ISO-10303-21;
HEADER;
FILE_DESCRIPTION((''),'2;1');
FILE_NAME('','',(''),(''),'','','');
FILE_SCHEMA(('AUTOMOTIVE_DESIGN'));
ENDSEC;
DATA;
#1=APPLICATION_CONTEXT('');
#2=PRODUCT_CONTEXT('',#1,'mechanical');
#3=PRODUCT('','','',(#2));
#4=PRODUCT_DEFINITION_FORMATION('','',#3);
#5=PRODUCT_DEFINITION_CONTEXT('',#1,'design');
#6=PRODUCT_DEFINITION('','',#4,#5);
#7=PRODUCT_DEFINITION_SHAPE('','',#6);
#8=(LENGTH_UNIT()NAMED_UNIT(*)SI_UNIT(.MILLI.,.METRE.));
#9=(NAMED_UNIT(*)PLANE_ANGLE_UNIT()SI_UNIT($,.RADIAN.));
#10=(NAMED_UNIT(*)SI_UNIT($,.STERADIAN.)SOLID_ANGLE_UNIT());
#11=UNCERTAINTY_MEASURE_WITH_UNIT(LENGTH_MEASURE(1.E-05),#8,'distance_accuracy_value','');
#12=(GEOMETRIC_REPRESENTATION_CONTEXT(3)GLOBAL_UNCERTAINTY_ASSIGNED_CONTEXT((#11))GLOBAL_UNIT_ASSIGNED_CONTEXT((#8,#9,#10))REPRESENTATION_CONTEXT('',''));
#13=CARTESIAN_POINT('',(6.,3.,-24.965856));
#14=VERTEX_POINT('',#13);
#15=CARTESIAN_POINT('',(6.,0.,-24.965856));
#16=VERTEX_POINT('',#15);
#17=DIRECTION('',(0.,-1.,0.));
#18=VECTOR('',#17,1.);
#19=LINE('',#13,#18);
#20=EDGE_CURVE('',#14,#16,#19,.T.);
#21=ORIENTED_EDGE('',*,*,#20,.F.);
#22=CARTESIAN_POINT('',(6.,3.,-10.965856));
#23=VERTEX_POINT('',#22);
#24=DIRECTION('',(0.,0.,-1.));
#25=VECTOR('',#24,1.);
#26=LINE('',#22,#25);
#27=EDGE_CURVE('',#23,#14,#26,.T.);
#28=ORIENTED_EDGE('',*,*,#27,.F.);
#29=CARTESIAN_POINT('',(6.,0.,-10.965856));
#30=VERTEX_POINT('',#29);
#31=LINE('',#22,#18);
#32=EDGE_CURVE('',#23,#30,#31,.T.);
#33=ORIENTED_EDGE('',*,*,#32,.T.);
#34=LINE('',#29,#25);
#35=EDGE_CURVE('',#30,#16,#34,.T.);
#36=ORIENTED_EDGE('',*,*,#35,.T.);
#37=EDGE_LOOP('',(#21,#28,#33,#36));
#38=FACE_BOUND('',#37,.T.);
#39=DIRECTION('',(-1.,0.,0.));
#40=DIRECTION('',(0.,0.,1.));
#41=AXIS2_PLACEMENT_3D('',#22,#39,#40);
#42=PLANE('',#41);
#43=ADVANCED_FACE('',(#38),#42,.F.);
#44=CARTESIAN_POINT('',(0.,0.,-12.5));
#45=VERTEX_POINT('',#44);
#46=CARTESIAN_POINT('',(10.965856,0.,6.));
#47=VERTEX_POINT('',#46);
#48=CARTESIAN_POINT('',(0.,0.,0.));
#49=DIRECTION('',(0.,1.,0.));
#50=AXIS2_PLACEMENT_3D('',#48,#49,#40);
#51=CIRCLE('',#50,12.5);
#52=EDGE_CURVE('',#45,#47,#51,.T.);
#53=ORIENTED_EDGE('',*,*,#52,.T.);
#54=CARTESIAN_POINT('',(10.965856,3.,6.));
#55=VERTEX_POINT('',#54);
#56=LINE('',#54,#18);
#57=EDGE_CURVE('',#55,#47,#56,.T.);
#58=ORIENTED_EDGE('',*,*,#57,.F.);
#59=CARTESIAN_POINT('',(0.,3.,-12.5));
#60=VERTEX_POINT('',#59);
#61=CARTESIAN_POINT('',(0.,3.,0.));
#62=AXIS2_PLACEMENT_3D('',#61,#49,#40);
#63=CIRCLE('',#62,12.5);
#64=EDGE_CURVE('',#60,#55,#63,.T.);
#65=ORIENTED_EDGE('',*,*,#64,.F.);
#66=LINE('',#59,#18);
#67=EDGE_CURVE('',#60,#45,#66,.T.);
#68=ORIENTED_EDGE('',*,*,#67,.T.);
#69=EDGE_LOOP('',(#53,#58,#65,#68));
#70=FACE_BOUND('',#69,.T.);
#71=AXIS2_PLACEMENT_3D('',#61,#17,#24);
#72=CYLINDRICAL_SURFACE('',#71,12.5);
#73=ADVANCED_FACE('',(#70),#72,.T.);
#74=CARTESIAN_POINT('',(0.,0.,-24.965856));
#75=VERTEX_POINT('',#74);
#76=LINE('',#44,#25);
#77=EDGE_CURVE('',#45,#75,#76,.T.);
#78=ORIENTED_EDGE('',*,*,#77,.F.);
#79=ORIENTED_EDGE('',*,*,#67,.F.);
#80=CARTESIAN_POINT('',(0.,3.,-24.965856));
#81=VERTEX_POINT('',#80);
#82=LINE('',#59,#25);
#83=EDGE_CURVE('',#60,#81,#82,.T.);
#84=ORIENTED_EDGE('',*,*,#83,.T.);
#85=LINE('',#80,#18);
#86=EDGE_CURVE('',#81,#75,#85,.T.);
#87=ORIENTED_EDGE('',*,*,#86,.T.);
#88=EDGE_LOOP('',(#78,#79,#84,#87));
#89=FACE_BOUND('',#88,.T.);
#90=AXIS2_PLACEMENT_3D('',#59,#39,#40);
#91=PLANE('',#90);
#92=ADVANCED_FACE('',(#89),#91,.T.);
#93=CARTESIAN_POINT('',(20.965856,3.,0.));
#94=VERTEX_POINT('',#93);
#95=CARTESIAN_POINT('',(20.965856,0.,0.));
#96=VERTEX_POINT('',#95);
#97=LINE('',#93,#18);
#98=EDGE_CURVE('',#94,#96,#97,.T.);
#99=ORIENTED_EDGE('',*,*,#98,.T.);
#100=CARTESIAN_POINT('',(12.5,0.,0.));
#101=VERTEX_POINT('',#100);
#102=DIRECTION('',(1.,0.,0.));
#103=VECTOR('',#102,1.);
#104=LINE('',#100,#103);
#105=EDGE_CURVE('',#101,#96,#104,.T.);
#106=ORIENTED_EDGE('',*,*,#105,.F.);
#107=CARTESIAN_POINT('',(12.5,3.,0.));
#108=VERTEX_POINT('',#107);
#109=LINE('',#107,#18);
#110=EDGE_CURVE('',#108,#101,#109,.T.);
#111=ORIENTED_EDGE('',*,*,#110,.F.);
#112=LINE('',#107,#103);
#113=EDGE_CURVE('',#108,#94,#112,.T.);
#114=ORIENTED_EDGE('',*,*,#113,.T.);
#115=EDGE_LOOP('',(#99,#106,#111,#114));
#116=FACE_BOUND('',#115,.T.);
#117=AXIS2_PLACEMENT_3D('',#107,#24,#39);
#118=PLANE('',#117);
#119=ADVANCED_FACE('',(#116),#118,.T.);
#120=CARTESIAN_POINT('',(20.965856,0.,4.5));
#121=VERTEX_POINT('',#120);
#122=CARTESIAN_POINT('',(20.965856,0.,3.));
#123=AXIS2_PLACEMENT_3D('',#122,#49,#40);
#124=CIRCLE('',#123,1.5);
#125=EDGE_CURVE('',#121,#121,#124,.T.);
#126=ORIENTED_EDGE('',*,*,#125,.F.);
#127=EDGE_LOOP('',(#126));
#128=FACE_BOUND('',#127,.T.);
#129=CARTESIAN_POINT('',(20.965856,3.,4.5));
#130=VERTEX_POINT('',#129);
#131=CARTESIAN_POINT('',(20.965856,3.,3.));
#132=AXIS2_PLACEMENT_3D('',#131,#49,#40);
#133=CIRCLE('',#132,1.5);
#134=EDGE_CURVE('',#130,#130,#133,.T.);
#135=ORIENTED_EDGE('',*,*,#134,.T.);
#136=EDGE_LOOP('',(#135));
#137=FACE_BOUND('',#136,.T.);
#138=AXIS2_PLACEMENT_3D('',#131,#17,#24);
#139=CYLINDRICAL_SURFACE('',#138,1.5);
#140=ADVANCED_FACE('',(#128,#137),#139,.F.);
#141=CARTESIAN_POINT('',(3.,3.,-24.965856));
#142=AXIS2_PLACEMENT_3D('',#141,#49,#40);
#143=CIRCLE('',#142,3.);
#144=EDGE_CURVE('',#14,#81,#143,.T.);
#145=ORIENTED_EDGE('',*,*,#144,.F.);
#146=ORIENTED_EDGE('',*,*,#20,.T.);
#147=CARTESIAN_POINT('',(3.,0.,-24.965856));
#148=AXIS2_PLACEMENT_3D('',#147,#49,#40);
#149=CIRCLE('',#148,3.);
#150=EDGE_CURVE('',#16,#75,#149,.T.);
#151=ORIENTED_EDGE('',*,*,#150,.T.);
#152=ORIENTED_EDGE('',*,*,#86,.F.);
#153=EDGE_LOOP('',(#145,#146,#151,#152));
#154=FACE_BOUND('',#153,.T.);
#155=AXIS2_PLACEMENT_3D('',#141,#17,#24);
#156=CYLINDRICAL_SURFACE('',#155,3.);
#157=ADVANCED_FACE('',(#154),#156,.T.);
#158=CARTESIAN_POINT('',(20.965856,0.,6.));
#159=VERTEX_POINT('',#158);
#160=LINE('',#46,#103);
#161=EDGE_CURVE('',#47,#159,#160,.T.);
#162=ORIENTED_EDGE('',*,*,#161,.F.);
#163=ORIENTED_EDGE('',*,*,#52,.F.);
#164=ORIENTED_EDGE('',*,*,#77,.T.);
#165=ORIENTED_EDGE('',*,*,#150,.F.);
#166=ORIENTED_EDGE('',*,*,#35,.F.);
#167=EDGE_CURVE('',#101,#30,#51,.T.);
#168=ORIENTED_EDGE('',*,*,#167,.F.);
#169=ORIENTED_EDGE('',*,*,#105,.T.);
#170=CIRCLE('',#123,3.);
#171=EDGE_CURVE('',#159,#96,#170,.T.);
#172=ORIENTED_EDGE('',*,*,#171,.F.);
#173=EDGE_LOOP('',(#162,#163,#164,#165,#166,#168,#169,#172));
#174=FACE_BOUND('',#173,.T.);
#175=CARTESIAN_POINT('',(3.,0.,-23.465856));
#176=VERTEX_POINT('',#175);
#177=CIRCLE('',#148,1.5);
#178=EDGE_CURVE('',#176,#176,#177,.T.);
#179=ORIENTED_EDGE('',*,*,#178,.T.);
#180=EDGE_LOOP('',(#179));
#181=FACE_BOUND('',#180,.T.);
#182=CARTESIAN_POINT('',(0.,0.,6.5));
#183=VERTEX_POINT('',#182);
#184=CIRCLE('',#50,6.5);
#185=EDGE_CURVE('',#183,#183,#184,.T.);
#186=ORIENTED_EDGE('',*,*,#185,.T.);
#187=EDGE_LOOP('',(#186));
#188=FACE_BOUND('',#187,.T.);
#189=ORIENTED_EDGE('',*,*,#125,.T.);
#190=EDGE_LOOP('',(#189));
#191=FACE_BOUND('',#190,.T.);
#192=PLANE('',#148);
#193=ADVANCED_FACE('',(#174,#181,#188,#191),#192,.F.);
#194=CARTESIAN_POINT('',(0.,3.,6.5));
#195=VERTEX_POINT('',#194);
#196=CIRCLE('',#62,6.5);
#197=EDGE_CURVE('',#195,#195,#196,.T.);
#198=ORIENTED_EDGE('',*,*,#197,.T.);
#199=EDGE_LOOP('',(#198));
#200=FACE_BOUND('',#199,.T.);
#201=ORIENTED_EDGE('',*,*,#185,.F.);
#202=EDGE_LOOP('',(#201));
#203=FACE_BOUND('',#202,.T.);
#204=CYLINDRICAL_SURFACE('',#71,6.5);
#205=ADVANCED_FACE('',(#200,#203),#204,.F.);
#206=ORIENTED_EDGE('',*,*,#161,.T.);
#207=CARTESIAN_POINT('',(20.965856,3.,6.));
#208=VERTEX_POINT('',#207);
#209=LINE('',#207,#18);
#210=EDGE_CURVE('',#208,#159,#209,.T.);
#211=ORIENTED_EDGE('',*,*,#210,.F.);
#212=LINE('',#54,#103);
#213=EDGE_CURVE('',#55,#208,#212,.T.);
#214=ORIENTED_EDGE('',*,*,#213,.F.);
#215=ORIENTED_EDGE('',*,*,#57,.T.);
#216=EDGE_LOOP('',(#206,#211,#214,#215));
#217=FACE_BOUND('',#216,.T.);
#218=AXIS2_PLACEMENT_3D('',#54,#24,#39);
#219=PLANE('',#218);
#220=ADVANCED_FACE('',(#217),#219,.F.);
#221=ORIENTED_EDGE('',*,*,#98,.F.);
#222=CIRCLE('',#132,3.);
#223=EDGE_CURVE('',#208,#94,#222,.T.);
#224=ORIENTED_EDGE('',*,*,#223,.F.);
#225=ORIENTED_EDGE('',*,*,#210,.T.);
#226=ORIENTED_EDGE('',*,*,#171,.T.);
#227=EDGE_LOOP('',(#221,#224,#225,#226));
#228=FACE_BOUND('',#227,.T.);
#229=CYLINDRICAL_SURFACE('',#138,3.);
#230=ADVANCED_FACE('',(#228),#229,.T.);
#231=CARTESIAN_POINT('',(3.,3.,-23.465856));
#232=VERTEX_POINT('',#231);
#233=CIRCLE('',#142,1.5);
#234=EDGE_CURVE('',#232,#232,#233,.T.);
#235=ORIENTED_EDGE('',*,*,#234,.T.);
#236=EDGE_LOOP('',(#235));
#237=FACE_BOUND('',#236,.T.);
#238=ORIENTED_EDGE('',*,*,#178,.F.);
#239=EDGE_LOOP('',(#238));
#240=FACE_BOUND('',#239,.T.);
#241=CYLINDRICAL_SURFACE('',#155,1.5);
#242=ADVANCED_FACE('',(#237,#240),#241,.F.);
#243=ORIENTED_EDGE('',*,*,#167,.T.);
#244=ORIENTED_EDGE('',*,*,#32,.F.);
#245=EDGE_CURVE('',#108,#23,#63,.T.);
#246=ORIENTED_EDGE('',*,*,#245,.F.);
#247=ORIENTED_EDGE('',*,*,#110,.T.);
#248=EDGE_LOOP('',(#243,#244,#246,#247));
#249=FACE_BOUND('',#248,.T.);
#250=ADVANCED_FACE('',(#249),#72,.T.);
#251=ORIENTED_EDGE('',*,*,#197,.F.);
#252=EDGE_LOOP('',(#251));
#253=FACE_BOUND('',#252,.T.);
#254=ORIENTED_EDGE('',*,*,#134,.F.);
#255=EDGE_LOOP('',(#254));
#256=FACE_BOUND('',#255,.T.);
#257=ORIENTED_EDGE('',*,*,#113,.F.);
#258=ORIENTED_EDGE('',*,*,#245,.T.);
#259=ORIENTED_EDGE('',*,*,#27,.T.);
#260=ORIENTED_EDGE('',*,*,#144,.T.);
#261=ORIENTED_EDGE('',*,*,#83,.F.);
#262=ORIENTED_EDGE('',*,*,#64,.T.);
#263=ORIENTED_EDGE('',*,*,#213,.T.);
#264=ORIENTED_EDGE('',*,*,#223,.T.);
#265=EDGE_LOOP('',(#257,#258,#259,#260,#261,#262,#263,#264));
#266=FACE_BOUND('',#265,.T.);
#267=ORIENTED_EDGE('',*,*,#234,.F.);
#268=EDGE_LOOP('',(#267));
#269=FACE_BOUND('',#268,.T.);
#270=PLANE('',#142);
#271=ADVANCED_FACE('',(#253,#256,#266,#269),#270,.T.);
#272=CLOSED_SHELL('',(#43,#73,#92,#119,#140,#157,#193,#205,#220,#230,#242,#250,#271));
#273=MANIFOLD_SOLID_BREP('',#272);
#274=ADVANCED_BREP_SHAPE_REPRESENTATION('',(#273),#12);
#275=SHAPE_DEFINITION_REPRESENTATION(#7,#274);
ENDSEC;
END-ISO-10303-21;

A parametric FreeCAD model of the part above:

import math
import FreeCAD as App
import Part
import Sketcher
from FreeCAD import Vector

doc = App.newDocument("Part")
body = doc.addObject("PartDesign::Body", "Body")

# Sketch on XZ plane
sketch1 = doc.addObject("Sketcher::SketchObject", "Sketch")
body.addObject(sketch1)
sketch1.AttachmentSupport = (doc.XZ_Plane, [""])
sketch1.MapMode = "FlatFace"
sketch1.addGeometry([
    Part.LineSegment(Vector(0, -24.965856, 0), Vector(0, -12.5, 0)),  # 0
    Part.ArcOfCircle(Part.Circle(Vector(0, 0, 0), Vector(0, 0, 1), 12.5), math.radians(28.685402), math.radians(270)),  # 1
    Part.LineSegment(Vector(10.965856, 6, 0), Vector(20.965856, 6, 0)),  # 2
    Part.ArcOfCircle(Part.Circle(Vector(20.965856, 3, 0), Vector(0, 0, 1), 3), math.radians(-90), math.radians(90)),  # 3
    Part.LineSegment(Vector(20.965856, 0, 0), Vector(12.5, 0, 0)),  # 4
    Part.ArcOfCircle(Part.Circle(Vector(0, 0, 0), Vector(0, 0, 1), 12.5), math.radians(-61.314598), math.radians(0)),  # 5
    Part.LineSegment(Vector(6, -10.965856, 0), Vector(6, -24.965856, 0)),  # 6
    Part.ArcOfCircle(Part.Circle(Vector(3, -24.965856, 0), Vector(0, 0, 1), 3), math.radians(180), math.radians(360)),  # 7
    Part.Circle(Vector(20.965856, 3, 0), Vector(0, 0, 1), 1.5),  # 8
    Part.Circle(Vector(0, 0, 0), Vector(0, 0, 1), 6.5),  # 9
    Part.Circle(Vector(3, -24.965856, 0), Vector(0, 0, 1), 1.5),  # 10
], False)
sketch1.addConstraint([
    Sketcher.Constraint("Coincident", 0, 2, 1, 2),
    Sketcher.Constraint("Coincident", 1, 1, 2, 1),
    Sketcher.Constraint("Tangent", 2, 2, 3, 2),
    Sketcher.Constraint("Tangent", 3, 1, 4, 1),
    Sketcher.Constraint("Coincident", 4, 2, 5, 2),
    Sketcher.Constraint("Coincident", 5, 1, 6, 1),
    Sketcher.Constraint("Tangent", 6, 2, 7, 2),
    Sketcher.Constraint("Tangent", 7, 1, 0, 1),
    Sketcher.Constraint("Vertical", 0),
    Sketcher.Constraint("Horizontal", 2),
    Sketcher.Constraint("Horizontal", 4),
    Sketcher.Constraint("Vertical", 6),
    Sketcher.Constraint("Coincident", 1, 3, -1, 1),
    Sketcher.Constraint("Coincident", 5, 3, -1, 1),
    Sketcher.Constraint("Coincident", 9, 3, -1, 1),
    Sketcher.Constraint("Coincident", 8, 3, 3, 3),
    Sketcher.Constraint("Coincident", 10, 3, 7, 3),
    Sketcher.Constraint("Equal", 1, 5),
    Sketcher.Constraint("Equal", 3, 7),
    Sketcher.Constraint("Equal", 8, 10),
    Sketcher.Constraint("PointOnObject", 0, 2, -2),
    Sketcher.Constraint("PointOnObject", 3, 1, -1),
    Sketcher.Constraint("Diameter", 8, 3.0),
    Sketcher.Constraint("Diameter", 9, 13.0),
    Sketcher.Constraint("Radius", 3, 3.0),
    Sketcher.Constraint("Radius", 1, 12.5),
    Sketcher.Constraint("DistanceX", 2, 1, 2, 2, 10.0),
    Sketcher.Constraint("DistanceY", 6, 2, 6, 1, 14.0),
])
pad1 = doc.addObject("PartDesign::Pad", "Pad")
body.addObject(pad1)
pad1.Profile = sketch1
pad1.Length = 3
pad1.Reversed = True

doc.recompute()
